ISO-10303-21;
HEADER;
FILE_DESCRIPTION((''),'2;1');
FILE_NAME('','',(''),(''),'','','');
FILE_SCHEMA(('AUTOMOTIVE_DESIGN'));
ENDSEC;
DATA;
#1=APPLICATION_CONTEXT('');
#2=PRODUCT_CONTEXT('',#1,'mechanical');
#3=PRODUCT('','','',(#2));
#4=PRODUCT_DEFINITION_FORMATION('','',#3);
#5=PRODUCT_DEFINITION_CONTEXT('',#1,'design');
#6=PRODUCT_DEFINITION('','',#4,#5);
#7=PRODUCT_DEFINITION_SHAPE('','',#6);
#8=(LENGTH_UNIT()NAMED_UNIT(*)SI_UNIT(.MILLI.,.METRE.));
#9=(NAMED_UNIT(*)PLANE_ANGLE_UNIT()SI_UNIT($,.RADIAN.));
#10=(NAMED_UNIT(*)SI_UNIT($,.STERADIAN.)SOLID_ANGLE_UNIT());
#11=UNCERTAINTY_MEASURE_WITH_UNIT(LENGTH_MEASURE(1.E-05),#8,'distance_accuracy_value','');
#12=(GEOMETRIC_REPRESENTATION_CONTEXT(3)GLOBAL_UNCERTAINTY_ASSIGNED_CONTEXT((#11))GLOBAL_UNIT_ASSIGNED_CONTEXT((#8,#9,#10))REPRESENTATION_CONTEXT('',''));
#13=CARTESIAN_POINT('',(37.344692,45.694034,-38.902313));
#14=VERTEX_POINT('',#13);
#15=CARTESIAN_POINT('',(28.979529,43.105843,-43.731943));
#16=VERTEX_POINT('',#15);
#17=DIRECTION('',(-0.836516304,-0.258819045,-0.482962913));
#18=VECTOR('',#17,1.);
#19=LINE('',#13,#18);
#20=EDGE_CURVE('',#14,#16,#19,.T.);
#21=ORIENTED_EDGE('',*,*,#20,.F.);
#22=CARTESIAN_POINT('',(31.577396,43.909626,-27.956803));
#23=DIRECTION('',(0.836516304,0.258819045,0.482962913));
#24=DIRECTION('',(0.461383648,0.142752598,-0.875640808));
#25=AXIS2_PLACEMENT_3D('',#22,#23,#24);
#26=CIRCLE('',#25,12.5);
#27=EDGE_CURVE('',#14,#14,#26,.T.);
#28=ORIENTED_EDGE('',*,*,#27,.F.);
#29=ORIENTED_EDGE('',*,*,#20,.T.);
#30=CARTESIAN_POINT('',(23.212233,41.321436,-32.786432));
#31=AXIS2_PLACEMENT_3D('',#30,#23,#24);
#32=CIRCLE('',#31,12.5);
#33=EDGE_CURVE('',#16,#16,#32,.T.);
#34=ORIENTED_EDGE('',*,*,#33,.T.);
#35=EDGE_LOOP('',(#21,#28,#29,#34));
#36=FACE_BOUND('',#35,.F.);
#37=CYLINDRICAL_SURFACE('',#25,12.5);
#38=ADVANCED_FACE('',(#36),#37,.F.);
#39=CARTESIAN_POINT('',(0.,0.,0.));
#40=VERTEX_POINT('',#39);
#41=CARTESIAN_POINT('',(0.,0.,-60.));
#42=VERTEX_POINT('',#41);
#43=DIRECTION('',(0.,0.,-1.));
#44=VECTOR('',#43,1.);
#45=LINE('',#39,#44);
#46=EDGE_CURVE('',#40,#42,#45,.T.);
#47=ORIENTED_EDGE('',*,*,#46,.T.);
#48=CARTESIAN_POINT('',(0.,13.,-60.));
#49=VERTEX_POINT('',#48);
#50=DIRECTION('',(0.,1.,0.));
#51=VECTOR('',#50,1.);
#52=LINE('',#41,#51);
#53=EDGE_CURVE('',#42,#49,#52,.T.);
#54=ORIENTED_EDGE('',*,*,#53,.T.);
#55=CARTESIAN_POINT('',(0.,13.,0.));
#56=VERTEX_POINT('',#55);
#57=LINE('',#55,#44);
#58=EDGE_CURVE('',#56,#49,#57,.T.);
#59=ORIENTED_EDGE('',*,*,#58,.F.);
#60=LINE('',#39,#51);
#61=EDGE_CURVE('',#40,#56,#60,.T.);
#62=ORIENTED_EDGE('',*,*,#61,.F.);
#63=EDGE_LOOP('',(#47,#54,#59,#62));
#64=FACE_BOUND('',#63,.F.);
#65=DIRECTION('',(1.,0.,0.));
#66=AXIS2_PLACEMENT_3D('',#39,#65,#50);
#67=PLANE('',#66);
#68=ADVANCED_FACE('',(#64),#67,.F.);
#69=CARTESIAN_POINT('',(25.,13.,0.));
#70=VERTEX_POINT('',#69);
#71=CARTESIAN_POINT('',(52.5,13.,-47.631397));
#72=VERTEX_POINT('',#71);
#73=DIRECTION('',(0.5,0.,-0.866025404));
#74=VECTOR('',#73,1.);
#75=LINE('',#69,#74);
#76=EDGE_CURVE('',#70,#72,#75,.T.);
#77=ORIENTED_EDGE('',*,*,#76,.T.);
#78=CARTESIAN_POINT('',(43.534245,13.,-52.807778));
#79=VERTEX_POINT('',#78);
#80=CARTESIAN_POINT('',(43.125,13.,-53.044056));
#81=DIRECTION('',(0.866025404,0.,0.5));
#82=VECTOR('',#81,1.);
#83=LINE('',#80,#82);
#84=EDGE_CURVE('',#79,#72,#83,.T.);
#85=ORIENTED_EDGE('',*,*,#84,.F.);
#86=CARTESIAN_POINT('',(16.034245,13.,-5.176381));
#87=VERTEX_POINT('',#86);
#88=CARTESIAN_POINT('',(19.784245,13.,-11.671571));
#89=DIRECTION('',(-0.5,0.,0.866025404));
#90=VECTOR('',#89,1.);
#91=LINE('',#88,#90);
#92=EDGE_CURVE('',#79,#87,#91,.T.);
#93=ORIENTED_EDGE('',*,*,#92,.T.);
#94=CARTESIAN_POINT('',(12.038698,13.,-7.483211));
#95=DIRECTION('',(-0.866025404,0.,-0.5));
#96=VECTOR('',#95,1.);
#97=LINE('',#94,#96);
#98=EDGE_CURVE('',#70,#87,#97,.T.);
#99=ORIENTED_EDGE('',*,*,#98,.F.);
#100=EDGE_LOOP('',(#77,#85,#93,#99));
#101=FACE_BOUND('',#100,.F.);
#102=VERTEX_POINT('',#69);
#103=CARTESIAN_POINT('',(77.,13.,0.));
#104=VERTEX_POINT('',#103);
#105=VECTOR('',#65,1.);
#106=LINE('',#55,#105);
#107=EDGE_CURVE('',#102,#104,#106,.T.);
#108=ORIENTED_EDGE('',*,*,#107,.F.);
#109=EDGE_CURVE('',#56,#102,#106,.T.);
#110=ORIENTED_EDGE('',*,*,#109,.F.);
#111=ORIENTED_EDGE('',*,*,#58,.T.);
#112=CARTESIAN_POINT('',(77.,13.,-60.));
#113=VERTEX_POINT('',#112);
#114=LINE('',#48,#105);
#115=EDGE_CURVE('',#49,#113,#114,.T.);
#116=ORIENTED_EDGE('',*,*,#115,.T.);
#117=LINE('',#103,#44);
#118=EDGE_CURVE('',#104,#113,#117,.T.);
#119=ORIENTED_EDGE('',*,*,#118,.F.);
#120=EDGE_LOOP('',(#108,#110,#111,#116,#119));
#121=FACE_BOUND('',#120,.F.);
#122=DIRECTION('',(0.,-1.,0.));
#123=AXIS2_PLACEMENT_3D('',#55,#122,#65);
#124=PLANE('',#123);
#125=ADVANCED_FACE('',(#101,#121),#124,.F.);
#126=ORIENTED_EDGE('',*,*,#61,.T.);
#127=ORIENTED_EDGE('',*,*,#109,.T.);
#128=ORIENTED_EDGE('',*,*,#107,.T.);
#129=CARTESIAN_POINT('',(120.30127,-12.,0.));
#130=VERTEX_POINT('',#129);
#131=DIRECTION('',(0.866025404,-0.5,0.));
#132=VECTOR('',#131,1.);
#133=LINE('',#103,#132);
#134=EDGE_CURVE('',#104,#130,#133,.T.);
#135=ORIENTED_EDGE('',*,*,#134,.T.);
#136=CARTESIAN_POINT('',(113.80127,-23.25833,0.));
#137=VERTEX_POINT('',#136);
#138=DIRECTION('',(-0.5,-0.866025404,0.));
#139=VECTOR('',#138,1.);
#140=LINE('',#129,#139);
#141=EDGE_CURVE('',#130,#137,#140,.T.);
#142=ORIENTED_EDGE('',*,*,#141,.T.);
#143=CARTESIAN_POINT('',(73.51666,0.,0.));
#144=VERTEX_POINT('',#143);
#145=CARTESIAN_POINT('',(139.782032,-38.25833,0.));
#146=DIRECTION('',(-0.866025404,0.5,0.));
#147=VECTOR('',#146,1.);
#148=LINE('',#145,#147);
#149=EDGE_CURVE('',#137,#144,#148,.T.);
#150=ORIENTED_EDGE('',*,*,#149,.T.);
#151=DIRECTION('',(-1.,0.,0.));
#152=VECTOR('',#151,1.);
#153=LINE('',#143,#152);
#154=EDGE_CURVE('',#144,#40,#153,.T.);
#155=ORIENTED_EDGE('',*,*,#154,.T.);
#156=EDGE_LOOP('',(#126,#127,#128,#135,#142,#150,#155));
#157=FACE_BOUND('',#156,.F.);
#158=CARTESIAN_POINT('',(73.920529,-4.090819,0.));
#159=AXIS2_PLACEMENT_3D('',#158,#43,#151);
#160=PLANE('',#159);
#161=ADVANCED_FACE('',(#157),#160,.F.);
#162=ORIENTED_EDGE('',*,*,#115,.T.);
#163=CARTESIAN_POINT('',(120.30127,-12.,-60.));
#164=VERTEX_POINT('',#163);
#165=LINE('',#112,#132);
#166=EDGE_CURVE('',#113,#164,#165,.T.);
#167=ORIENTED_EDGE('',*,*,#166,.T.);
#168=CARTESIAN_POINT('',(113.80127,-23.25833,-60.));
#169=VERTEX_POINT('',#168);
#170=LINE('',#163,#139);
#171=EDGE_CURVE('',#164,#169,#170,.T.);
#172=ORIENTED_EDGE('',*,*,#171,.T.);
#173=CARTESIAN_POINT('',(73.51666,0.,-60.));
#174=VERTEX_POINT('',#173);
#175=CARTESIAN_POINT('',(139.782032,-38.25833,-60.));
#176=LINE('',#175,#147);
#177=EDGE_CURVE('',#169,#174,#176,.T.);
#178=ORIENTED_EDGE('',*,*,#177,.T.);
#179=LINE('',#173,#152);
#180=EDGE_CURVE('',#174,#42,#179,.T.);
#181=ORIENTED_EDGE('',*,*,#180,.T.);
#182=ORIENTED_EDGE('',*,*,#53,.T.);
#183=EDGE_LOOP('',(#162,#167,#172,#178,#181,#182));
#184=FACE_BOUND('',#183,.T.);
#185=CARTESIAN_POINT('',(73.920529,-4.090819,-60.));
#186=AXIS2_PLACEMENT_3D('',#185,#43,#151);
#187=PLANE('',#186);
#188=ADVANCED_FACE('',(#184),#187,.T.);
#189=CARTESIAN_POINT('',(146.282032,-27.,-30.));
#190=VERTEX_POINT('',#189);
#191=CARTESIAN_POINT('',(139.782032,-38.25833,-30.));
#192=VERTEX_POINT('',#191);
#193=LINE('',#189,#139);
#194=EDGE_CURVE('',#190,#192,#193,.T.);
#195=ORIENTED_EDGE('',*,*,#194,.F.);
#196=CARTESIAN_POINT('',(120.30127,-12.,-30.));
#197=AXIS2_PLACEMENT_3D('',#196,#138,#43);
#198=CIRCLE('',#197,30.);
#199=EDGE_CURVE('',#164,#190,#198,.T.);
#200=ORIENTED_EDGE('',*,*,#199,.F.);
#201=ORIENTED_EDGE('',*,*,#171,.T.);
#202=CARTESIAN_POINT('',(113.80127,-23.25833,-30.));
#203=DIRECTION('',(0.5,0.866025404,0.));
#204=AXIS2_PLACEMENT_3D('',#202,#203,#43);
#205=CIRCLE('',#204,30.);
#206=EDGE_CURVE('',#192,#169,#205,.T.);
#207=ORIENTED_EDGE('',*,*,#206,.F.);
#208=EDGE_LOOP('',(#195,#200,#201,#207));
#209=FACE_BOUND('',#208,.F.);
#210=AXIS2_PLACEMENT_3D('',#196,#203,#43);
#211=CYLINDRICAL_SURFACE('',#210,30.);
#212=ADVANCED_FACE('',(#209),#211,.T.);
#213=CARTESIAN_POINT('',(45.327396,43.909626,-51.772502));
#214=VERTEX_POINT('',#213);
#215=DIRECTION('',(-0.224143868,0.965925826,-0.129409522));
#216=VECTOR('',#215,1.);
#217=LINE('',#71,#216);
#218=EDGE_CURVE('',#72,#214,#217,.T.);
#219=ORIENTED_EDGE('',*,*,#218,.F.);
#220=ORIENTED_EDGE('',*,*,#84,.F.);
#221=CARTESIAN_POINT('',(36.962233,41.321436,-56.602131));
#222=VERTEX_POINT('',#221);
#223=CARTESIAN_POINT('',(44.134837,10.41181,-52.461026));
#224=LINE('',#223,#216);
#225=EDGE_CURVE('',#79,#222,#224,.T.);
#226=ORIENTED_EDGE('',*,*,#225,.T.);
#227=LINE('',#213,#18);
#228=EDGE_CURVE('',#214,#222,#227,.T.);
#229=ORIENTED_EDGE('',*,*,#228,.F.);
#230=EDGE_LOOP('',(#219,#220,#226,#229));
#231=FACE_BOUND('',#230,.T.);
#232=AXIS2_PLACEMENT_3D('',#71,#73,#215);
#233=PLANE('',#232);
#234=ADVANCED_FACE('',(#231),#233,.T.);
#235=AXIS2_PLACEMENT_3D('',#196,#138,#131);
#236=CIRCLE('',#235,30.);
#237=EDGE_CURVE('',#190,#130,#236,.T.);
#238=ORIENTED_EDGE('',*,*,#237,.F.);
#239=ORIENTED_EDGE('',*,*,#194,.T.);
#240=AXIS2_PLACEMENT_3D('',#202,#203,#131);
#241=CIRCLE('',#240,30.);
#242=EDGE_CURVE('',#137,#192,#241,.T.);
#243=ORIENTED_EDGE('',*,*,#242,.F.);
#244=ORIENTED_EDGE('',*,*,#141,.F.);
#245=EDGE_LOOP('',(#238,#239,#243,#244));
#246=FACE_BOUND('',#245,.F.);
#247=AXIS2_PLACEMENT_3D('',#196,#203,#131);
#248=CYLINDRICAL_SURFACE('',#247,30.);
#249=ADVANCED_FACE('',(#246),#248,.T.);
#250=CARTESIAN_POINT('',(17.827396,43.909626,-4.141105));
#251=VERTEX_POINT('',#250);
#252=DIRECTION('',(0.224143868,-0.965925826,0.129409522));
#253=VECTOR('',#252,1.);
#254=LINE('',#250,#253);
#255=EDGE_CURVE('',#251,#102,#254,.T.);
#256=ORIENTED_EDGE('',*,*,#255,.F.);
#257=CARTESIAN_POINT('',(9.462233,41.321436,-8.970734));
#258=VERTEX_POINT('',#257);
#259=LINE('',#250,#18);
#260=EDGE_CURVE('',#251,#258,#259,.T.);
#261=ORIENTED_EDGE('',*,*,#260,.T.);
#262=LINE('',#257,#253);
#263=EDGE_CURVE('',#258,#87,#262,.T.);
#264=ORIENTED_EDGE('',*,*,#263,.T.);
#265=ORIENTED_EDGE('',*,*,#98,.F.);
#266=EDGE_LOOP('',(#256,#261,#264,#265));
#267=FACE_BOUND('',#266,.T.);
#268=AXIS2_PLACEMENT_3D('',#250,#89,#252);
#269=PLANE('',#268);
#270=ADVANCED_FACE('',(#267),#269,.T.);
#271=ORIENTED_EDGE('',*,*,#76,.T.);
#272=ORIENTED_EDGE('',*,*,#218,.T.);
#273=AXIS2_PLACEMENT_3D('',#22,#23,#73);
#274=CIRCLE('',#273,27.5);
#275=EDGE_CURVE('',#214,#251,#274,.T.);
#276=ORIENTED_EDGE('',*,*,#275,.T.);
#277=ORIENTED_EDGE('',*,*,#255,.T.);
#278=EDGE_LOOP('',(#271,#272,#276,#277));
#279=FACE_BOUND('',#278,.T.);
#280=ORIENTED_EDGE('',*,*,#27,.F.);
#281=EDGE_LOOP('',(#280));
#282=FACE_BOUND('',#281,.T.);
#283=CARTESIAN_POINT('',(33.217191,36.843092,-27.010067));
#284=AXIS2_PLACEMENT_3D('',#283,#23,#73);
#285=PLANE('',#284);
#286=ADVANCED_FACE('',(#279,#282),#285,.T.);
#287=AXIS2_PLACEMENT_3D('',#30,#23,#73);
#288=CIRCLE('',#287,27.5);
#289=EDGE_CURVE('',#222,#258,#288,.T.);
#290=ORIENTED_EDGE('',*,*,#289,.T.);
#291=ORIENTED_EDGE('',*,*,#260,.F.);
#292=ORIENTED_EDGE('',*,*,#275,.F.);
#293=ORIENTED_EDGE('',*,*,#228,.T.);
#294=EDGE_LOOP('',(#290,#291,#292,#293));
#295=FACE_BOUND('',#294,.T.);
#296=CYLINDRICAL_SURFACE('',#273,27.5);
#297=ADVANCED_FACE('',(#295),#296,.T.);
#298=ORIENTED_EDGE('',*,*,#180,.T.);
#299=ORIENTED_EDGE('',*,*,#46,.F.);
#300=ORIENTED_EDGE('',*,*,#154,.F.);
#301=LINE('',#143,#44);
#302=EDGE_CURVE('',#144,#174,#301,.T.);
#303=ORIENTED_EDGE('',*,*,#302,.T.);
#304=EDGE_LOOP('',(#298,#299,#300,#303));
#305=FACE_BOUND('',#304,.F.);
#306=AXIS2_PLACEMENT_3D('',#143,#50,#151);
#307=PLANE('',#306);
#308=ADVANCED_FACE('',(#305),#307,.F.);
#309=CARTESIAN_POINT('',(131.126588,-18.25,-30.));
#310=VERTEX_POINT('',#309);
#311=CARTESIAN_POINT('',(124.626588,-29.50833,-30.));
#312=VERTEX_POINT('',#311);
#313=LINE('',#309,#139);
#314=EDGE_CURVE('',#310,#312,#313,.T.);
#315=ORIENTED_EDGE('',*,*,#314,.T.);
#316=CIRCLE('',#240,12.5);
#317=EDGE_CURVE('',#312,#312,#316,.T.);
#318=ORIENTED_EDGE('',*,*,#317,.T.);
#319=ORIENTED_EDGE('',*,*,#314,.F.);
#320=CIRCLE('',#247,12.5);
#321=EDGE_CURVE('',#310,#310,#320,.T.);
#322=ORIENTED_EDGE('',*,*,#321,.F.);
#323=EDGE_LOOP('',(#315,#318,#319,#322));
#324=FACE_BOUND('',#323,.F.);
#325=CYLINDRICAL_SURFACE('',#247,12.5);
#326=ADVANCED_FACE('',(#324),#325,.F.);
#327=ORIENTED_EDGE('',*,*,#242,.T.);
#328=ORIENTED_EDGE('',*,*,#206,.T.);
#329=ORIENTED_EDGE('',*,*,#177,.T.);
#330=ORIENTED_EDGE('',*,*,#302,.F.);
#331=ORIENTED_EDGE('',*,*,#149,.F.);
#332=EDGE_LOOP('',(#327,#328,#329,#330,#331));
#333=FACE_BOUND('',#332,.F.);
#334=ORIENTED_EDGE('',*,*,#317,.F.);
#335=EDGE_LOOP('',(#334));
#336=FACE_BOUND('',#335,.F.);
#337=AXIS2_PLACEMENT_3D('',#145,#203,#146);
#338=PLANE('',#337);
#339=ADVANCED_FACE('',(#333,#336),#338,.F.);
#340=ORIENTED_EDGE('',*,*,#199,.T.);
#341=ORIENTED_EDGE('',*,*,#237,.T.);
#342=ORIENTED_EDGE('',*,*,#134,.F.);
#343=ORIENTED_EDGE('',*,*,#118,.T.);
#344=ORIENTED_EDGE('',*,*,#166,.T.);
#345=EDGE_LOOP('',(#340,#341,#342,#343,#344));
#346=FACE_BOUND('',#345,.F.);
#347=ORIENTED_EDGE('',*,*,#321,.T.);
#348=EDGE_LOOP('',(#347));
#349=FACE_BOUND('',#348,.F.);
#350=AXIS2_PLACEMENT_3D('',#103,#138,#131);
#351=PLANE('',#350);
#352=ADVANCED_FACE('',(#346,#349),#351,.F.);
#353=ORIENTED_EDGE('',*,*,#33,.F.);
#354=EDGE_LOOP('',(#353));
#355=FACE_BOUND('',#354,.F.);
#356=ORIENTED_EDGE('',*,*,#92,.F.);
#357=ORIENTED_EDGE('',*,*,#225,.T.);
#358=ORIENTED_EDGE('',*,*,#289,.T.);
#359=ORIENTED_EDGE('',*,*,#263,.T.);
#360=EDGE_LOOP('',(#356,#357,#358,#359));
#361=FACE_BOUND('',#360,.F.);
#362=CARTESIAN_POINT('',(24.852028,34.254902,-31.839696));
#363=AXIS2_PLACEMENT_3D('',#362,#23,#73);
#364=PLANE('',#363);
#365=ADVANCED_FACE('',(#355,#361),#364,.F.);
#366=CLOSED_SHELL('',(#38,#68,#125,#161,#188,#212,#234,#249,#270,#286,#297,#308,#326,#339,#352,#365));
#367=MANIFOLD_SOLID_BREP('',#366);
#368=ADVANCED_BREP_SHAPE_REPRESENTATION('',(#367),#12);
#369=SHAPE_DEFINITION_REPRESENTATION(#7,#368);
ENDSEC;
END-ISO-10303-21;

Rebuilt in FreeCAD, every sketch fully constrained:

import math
import FreeCAD as App
import Part
import Sketcher
from FreeCAD import Vector
Q = App.Units.Quantity


def add_polygon(sketch, points):
    """Adds a closed chain of lines whose ends are joined by coincident constraints."""
    first, n = sketch.GeometryCount, len(points)
    for a, b in zip(points, points[1:] + points[:1]):
        sketch.addGeometry(Part.LineSegment(App.Vector(*a, 0), App.Vector(*b, 0)), False)
    for i in range(n):
        sketch.addConstraint(Sketcher.Constraint("Coincident", first + i, 2, first + (i + 1) % n, 1))

doc = App.newDocument("Part")
body = doc.addObject("PartDesign::Body", "Body")

sketch1 = doc.addObject("Sketcher::SketchObject", "Sketch")
body.addObject(sketch1)
sketch1.AttachmentSupport = (doc.XY_Plane, [""])
sketch1.MapMode = "FlatFace"
add_polygon(sketch1, [(0, 13), (0, 0), (74, 0), (140, -38), (146, -27), (77, 13)])
sketch1.addConstraint([
    Sketcher.Constraint("Vertical", 0),
    Sketcher.Constraint("Horizontal", 1),
    Sketcher.Constraint("Horizontal", 5),
    Sketcher.Constraint("Coincident", 0, 2, -1, 1),
    Sketcher.Constraint("Perpendicular", 2, 3),
    Sketcher.Constraint("Perpendicular", 3, 4),
    Sketcher.Constraint("DistanceX", 5, 2, 5, 1, Q("77 mm")),
    Sketcher.Constraint("DistanceY", 0, 2, 0, 1, Q("13 mm")),
    Sketcher.Constraint("Angle", 2, Q("-30 deg")),
    Sketcher.Constraint("Distance", 3, Q("13 mm")),
    Sketcher.Constraint("Distance", 4, Q("80 mm")),
])
pad1 = doc.addObject("PartDesign::Pad", "Pad")
body.addObject(pad1)
pad1.Profile = sketch1
pad1.Length = 60
pad1.Reversed = True

sketch2 = doc.addObject("Sketcher::SketchObject", "Sketch001")
body.addObject(sketch2)
sketch2.Placement = App.Placement(Vector(24.879165, 43.091978, 0), App.Rotation(Vector(0.866025404, -0.5, 0), Vector(0, 0, -1), Vector(0.5, 0.866025404, 0), "ZXY"))
sketch2.addGeometry([
    Part.LineSegment(Vector(140, 60, 0), Vector(110, 60, 0)),
    Part.ArcOfCircle(Part.Circle(Vector(110, 30, 0), Vector(0, 0, 1), 30), math.radians(0), math.radians(90)),
    Part.LineSegment(Vector(140, 30, 0), Vector(140, 60, 0)),
    Part.ArcOfCircle(Part.Circle(Vector(110, 30, 0), Vector(0, 0, 1), 30), math.radians(-90), math.radians(0)),
    Part.LineSegment(Vector(110, 0, 0), Vector(140, 0, 0)),
    Part.LineSegment(Vector(140, 0, 0), Vector(140, 30, 0)),
], False)
sketch2.addConstraint([
    Sketcher.Constraint("Tangent", 0, 2, 1, 2),
    Sketcher.Constraint("Tangent", 1, 1, 2, 1),
    Sketcher.Constraint("Coincident", 2, 2, 0, 1),
    Sketcher.Constraint("Tangent", 3, 1, 4, 1),
    Sketcher.Constraint("Coincident", 4, 2, 5, 1),
    Sketcher.Constraint("Tangent", 5, 2, 3, 2),
    Sketcher.Constraint("Horizontal", 0),
    Sketcher.Constraint("Vertical", 2),
    Sketcher.Constraint("Horizontal", 4),
    Sketcher.Constraint("Vertical", 5),
    Sketcher.Constraint("Coincident", 3, 3, 1, 3),
    Sketcher.Constraint("Equal", 1, 3),
    Sketcher.Constraint("PointOnObject", 3, 1, -1),
    Sketcher.Constraint("Radius", 1, Q("30 mm")),
    Sketcher.Constraint("DistanceX", -1, 1, 1, 3, Q("110.183956 mm")),
])
pocket1 = doc.addObject("PartDesign::Pocket", "Pocket")
body.addObject(pocket1)
pocket1.Profile = sketch2
pocket1.Length = 60

sketch3 = doc.addObject("Sketcher::SketchObject", "Sketch002")
body.addObject(sketch3)
sketch3.Placement = App.Placement(Vector(24.879165, 43.091978, 0), App.Rotation(Vector(0.866025404, -0.5, 0), Vector(0, 0, -1), Vector(0.5, 0.866025404, 0), "ZXY"))
sketch3.addGeometry(Part.Circle(Vector(110, 30, 0), Vector(0, 0, 1), 12), False)
sketch3.addConstraint([
    Sketcher.Constraint("Diameter", 0, Q("25 mm")),
    Sketcher.Constraint("DistanceY", -1, 1, 0, 3, Q("30 mm")),
    Sketcher.Constraint("DistanceX", -1, 1, 0, 3, Q("110.183956 mm")),
])
pocket2 = doc.addObject("PartDesign::Pocket", "Pocket001")
body.addObject(pocket2)
pocket2.Profile = sketch3
pocket2.Length = 60

sketch4 = doc.addObject("Sketcher::SketchObject", "Sketch003")
body.addObject(sketch4)
sketch4.Placement = App.Placement(Vector(20.308571, 6.283494, 11.725159), App.Rotation(Vector(0.5, 0, -0.866025404), Vector(-0.224143868, 0.965925827, -0.129409523), Vector(0.836516304, 0.258819045, 0.482962913), "ZXY"))
sketch4.addGeometry([
    Part.LineSegment(Vector(13, 7, 0), Vector(68, 7, 0)),
    Part.LineSegment(Vector(68, 7, 0), Vector(68, 39, 0)),
    Part.ArcOfCircle(Part.Circle(Vector(40, 39, 0), Vector(0, 0, 1), 28), math.radians(0), math.radians(180)),
    Part.LineSegment(Vector(13, 39, 0), Vector(13, 7, 0)),
], False)
sketch4.addConstraint([
    Sketcher.Constraint("Coincident", 0, 2, 1, 1),
    Sketcher.Constraint("Tangent", 1, 2, 2, 1),
    Sketcher.Constraint("Tangent", 2, 2, 3, 1),
    Sketcher.Constraint("Coincident", 3, 2, 0, 1),
    Sketcher.Constraint("Horizontal", 0),
    Sketcher.Constraint("Vertical", 1),
    Sketcher.Constraint("Vertical", 3),
    Sketcher.Constraint("Radius", 2, Q("27.5 mm")),
    Sketcher.Constraint("DistanceY", 1, 1, 1, 2, Q("32 mm")),
    Sketcher.Constraint("DistanceX", -1, 1, 2, 3, Q("40 mm")),
    Sketcher.Constraint("DistanceY", -1, 1, 2, 3, Q("38.953439 mm")),
])
pad2 = doc.addObject("PartDesign::Pad", "Pad001")
body.addObject(pad2)
pad2.Profile = sketch4
pad2.Length = 10
pad2.Reversed = True

sketch5 = doc.addObject("Sketcher::SketchObject", "Sketch004")
body.addObject(sketch5)
sketch5.Placement = App.Placement(Vector(20.308571, 6.283494, 11.725159), App.Rotation(Vector(0.461383648, 0.142752598, -0.875640808), Vector(-0.295576728, 0.955319003, 0.000000001), Vector(0.836516304, 0.258819045, 0.482962913), "ZXY"))
sketch5.addGeometry(Part.Circle(Vector(45, 33, 0), Vector(0, 0, 1), 12), False)
sketch5.addConstraint([
    Sketcher.Constraint("Diameter", 0, Q("25 mm")),
    Sketcher.Constraint("DistanceX", -1, 1, 0, 3, Q("45.317625 mm")),
    Sketcher.Constraint("DistanceY", -1, 1, 0, 3, Q("32.614157 mm")),
])
pocket3 = doc.addObject("PartDesign::Pocket", "Pocket002")
body.addObject(pocket3)
pocket3.Profile = sketch5
pocket3.Length = 59

doc.recompute()
